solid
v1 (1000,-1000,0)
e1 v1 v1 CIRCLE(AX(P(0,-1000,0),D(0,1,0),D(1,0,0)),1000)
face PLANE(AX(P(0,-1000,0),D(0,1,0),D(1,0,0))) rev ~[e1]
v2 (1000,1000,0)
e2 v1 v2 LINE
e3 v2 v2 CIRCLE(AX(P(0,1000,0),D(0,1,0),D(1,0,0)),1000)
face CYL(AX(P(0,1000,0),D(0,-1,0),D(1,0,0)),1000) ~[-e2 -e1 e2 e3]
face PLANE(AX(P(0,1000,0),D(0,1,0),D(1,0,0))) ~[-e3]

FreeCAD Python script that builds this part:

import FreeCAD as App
import Part
import Sketcher
Q = App.Units.Quantity


def add_polygon(sketch, points):
    """Adds a closed chain of lines whose ends are joined by coincident constraints."""
    first, n = sketch.GeometryCount, len(points)
    for a, b in zip(points, points[1:] + points[:1]):
        sketch.addGeometry(Part.LineSegment(App.Vector(*a, 0), App.Vector(*b, 0)), False)
    for i in range(n):
        sketch.addConstraint(Sketcher.Constraint("Coincident", first + i, 2, first + (i + 1) % n, 1))

doc = App.newDocument("Part")
body = doc.addObject("PartDesign::Body", "Body")

# Sketch on XY plane
sketch1 = body.newObject("Sketcher::SketchObject", "Sketch")
sketch1.AttachmentSupport = (doc.getObject("XY_Plane"), [""])
sketch1.MapMode = "FlatFace"
add_polygon(sketch1, [(1000, 1000), (0, 1000), (0, -1000), (1000, -1000)])  # lines 0-3
sketch1.addConstraint([
    Sketcher.Constraint("Horizontal", 0),
    Sketcher.Constraint("Vertical", 1),
    Sketcher.Constraint("Horizontal", 2),
    Sketcher.Constraint("Vertical", 3),
    Sketcher.Constraint("Symmetric", 0, 2, 1, 2, -1, 1),
    Sketcher.Constraint("DistanceX", 0, 2, 0, 1, Q("1000 mm")),
    Sketcher.Constraint("DistanceY", 1, 2, 1, 1, Q("2000 mm")),
])
revolution = body.newObject("PartDesign::Revolution", "Revolution")
revolution.Profile = sketch1
revolution.ReferenceAxis = (sketch1, ["V_Axis"])
revolution.Angle = 360

doc.recompute()
